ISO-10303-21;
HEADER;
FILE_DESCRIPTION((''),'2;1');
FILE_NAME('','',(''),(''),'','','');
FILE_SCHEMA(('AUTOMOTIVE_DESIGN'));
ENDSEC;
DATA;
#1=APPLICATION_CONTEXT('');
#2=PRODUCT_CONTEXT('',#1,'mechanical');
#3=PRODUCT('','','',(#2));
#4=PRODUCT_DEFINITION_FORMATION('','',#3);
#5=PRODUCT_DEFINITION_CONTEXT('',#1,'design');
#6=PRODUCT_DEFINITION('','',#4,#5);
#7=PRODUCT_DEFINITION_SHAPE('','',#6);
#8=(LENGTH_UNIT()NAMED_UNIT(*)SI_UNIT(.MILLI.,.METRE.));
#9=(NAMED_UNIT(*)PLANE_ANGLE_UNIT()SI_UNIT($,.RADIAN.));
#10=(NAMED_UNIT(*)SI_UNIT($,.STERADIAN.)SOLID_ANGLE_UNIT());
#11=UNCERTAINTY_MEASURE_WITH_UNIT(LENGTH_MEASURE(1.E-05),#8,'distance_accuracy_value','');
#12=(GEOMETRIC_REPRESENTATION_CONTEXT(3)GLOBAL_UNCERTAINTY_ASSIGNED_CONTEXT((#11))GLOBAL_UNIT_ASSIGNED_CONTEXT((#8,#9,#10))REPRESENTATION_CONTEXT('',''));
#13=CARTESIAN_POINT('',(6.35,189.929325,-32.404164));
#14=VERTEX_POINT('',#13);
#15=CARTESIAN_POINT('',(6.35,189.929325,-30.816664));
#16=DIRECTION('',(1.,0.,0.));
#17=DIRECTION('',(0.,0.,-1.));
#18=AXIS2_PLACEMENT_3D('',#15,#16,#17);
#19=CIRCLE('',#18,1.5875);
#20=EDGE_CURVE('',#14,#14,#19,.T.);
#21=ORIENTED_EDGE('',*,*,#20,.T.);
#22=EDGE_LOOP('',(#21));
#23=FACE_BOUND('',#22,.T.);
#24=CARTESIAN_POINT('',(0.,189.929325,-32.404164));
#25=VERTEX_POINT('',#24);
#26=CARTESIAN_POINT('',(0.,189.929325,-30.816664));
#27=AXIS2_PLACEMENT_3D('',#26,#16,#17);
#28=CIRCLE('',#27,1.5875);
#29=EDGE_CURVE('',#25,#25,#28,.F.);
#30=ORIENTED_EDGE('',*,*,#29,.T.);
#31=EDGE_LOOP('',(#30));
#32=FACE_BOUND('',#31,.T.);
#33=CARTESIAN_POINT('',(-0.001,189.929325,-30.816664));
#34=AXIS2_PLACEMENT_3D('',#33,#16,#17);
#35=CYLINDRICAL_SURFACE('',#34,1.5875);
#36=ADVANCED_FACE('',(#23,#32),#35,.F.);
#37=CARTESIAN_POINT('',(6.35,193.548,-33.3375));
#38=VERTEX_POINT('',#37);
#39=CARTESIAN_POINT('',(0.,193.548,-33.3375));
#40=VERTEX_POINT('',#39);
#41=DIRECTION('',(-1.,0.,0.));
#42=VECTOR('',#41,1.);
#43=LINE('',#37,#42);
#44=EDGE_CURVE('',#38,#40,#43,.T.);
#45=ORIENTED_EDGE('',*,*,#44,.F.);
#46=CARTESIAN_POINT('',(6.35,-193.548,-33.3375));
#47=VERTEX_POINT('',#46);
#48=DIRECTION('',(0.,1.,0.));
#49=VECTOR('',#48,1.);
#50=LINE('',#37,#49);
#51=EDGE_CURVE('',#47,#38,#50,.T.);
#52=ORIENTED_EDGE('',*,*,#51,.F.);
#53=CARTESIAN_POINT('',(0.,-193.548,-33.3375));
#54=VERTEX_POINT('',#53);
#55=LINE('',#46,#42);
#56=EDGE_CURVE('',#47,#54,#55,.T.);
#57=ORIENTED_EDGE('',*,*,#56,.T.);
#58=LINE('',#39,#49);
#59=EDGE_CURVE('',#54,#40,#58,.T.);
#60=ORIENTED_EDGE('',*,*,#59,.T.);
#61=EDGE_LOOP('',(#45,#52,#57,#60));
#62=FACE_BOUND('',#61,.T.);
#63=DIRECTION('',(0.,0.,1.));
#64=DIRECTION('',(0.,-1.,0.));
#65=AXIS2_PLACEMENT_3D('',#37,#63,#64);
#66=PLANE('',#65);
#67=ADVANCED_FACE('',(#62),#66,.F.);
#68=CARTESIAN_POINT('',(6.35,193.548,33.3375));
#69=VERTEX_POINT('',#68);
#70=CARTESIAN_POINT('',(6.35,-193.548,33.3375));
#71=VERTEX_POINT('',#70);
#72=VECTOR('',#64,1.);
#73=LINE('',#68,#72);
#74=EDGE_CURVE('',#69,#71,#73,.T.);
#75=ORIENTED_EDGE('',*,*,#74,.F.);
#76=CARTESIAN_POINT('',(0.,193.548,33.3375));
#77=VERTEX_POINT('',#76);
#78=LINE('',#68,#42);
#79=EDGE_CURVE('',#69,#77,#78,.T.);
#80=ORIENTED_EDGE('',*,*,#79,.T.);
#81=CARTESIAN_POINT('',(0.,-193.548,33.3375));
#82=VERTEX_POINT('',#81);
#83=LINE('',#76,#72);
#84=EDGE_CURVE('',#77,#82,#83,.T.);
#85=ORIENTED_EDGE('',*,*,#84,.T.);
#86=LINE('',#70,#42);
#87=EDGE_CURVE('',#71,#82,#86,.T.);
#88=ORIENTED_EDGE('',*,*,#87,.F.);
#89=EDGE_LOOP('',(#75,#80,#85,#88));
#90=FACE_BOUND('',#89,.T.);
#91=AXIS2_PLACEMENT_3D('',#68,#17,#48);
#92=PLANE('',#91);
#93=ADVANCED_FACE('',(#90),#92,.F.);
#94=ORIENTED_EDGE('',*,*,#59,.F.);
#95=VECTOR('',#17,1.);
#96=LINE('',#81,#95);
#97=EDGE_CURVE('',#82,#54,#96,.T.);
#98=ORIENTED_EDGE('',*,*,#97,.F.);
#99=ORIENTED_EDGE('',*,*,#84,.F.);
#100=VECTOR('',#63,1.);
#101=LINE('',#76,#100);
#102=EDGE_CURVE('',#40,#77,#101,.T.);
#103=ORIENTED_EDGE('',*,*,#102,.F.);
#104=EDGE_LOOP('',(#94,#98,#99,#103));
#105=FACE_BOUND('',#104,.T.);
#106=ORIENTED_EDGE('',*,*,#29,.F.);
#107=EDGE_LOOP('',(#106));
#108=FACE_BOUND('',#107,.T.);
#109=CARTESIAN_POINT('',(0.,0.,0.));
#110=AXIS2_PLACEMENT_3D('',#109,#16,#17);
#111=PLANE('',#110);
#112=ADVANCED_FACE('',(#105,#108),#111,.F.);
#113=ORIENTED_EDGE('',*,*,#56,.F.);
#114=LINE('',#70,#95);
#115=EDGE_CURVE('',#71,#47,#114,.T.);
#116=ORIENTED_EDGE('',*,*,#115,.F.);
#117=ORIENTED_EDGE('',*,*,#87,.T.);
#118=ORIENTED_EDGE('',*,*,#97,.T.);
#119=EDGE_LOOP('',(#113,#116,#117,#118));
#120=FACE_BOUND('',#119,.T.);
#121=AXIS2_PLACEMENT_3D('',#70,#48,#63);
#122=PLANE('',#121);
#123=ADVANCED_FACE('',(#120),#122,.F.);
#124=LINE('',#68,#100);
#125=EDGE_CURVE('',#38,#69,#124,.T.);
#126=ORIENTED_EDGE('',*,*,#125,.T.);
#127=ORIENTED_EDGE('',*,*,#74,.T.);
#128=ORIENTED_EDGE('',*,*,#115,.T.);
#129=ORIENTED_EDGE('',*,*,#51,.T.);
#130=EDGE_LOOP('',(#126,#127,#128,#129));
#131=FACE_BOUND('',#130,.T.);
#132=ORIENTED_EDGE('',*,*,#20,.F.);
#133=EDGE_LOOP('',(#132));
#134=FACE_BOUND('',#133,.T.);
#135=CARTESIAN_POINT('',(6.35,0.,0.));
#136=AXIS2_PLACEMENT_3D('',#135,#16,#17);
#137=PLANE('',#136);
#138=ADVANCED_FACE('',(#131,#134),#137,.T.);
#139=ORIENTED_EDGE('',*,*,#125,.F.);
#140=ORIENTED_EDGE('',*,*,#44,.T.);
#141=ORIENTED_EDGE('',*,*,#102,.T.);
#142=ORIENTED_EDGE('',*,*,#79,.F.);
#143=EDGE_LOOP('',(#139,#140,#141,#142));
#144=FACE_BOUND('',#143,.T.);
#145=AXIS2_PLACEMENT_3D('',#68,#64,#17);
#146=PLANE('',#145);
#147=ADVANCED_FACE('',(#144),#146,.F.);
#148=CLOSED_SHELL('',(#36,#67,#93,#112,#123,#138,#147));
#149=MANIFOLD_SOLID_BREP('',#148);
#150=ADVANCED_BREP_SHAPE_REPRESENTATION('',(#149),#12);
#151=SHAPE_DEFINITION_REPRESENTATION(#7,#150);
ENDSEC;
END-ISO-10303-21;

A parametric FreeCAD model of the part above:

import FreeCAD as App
import Part
import Sketcher
from FreeCAD import Vector
Q = App.Units.Quantity

doc = App.newDocument("Part")
body = doc.addObject("PartDesign::Body", "Body")

# Sketch on YZ plane
sketch1 = doc.addObject("Sketcher::SketchObject", "Sketch")
body.addObject(sketch1)
sketch1.AttachmentSupport = (doc.YZ_Plane, [""])
sketch1.MapMode = "FlatFace"
sketch1.addGeometry(Part.LineSegment(Vector(193.548, 33.3375, 0), Vector(-193.548, 33.3375, 0)), False)
sketch1.addGeometry(Part.LineSegment(Vector(-193.548, 33.3375, 0), Vector(-193.548, -33.3375, 0)), False)
sketch1.addGeometry(Part.LineSegment(Vector(-193.548, -33.3375, 0), Vector(193.548, -33.3375, 0)), False)
sketch1.addGeometry(Part.LineSegment(Vector(193.548, -33.3375, 0), Vector(193.548, 33.3375, 0)), False)
sketch1.addConstraint(Sketcher.Constraint("Coincident", 0, 2, 1, 1))
sketch1.addConstraint(Sketcher.Constraint("Coincident", 1, 2, 2, 1))
sketch1.addConstraint(Sketcher.Constraint("Coincident", 2, 2, 3, 1))
sketch1.addConstraint(Sketcher.Constraint("Coincident", 3, 2, 0, 1))
sketch1.addConstraint(Sketcher.Constraint("Horizontal", 0))
sketch1.addConstraint(Sketcher.Constraint("Vertical", 1))
sketch1.addConstraint(Sketcher.Constraint("Horizontal", 2))
sketch1.addConstraint(Sketcher.Constraint("Vertical", 3))
sketch1.addConstraint(Sketcher.Constraint("Symmetric", 0, 2, 2, 2, -1, 1))
sketch1.addConstraint(Sketcher.Constraint("DistanceX", 0, 2, 0, 1, Q("15.24 in")))
sketch1.addConstraint(Sketcher.Constraint("DistanceY", 1, 2, 1, 1, Q("2.625 in")))
pad1 = doc.addObject("PartDesign::Pad", "Pad")
body.addObject(pad1)
pad1.Profile = sketch1
pad1.Length = Q("0.25 in")

# Sketch on YZ plane
sketch2 = doc.addObject("Sketcher::SketchObject", "Sketch001")
body.addObject(sketch2)
sketch2.AttachmentSupport = (doc.YZ_Plane, [""])
sketch2.MapMode = "FlatFace"
sketch2.AttachmentOffset = App.Placement(Vector(0, 0, 0.25 * 25.4), App.Rotation())
sketch2.addGeometry(Part.Circle(Vector(189.929325, -30.816664, 0), Vector(0, 0, 1), 1.5875), False)
sketch2.addConstraint(Sketcher.Constraint("Diameter", 0, Q("0.125 in")))
sketch2.addConstraint(Sketcher.Constraint("DistanceX", -1, 1, 0, 3, Q("189.929325 mm")))
sketch2.addConstraint(Sketcher.Constraint("DistanceY", 0, 3, -1, 1, Q("30.816664 mm")))
pocket1 = doc.addObject("PartDesign::Pocket", "Pocket")
body.addObject(pocket1)
pocket1.Profile = sketch2
pocket1.Type = "UpToFirst"

doc.recompute()
